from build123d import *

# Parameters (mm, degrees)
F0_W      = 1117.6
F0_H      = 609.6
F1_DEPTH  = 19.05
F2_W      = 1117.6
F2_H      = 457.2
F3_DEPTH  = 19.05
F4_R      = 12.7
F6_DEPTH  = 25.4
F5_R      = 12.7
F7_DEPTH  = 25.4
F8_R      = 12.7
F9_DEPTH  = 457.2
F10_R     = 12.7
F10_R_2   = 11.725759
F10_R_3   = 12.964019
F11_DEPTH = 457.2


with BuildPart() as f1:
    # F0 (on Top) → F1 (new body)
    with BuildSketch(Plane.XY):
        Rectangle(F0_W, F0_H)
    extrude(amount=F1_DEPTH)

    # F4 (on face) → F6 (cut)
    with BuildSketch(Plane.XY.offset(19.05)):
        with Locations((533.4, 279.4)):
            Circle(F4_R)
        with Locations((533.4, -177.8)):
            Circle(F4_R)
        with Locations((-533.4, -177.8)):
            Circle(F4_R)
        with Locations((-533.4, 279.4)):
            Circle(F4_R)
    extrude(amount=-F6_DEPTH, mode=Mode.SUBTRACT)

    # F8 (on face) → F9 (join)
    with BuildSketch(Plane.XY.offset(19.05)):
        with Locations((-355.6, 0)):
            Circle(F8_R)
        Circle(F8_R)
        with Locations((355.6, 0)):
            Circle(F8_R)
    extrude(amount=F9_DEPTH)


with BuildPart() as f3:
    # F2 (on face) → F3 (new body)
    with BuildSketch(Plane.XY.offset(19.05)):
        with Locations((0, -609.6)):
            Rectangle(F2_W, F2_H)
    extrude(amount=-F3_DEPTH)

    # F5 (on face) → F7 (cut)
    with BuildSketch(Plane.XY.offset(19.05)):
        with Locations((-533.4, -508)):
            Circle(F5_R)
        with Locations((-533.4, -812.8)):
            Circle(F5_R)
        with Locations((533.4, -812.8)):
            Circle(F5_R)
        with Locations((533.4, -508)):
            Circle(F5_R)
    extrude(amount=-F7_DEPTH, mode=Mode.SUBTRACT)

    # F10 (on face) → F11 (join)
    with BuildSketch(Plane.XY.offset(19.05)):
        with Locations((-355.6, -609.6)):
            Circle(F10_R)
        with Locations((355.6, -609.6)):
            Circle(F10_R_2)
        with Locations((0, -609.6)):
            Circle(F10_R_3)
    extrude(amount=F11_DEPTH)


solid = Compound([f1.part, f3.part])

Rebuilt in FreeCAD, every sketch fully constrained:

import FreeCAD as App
import Part
import Sketcher
Q = App.Units.Quantity


def add_polygon(sketch, points):
    """Adds a closed chain of lines whose ends are joined by coincident constraints."""
    first, n = sketch.GeometryCount, len(points)
    for a, b in zip(points, points[1:] + points[:1]):
        sketch.addGeometry(Part.LineSegment(App.Vector(*a, 0), App.Vector(*b, 0)), False)
    for i in range(n):
        sketch.addConstraint(Sketcher.Constraint("Coincident", first + i, 2, first + (i + 1) % n, 1))

doc = App.newDocument("Part")
body = doc.addObject("PartDesign::Body", "Body")

sketch1 = doc.addObject("Sketcher::SketchObject", "Sketch")
body.addObject(sketch1)
sketch1.AttachmentSupport = (doc.XY_Plane, [""])
sketch1.MapMode = "FlatFace"
add_polygon(sketch1, [(-558.8, 304.8), (-558.8, -304.8), (558.8, -304.8), (558.8, 304.8)])
sketch1.addConstraint([
    Sketcher.Constraint("Vertical", 0),
    Sketcher.Constraint("Horizontal", 1),
    Sketcher.Constraint("Vertical", 2),
    Sketcher.Constraint("Horizontal", 3),
    Sketcher.Constraint("Symmetric", 0, 2, 2, 2, -1, 1),
    Sketcher.Constraint("DistanceX", 1, 1, 1, 2, Q("44 in")),
    Sketcher.Constraint("DistanceY", 0, 2, 0, 1, Q("24 in")),
])
pad1 = doc.addObject("PartDesign::Pad", "Pad")
body.addObject(pad1)
pad1.Profile = sketch1
pad1.Length = Q("0.75 in")

sketch2 = doc.addObject("Sketcher::SketchObject", "Sketch001")
body.addObject(sketch2)
sketch2.AttachmentSupport = (doc.XY_Plane, [""])
sketch2.MapMode = "FlatFace"
sketch2.AttachmentOffset = App.Placement(App.Vector(0, 0, 0.75 * 25.4), App.Rotation())
sketch2.addGeometry([
    Part.Circle(App.Vector(533.4, 279.4, 0), App.Vector(0, 0, 1), 12.7),
    Part.Circle(App.Vector(533.4, -177.8, 0), App.Vector(0, 0, 1), 12.7),
    Part.Circle(App.Vector(-533.4, -177.8, 0), App.Vector(0, 0, 1), 12.7),
    Part.Circle(App.Vector(-533.4, 279.4, 0), App.Vector(0, 0, 1), 12.7),
], False)
sketch2.addConstraint([
    Sketcher.Constraint("Equal", 0, 1),
    Sketcher.Constraint("Equal", 1, 2),
    Sketcher.Constraint("Equal", 2, 3),
    Sketcher.Constraint("Symmetric", 1, 3, 2, 3, -2),
    Sketcher.Constraint("Symmetric", 0, 3, 3, 3, -2),
    Sketcher.Constraint("Vertical", 0, 3, 1, 3),
    Sketcher.Constraint("Diameter", 0, Q("1 in")),
    Sketcher.Constraint("DistanceX", -1, 1, 0, 3, Q("21 in")),
    Sketcher.Constraint("DistanceY", -1, 1, 0, 3, Q("11 in")),
    Sketcher.Constraint("DistanceY", 1, 3, -1, 1, Q("7 in")),
])
pocket1 = doc.addObject("PartDesign::Pocket", "Pocket")
body.addObject(pocket1)
pocket1.Profile = sketch2
pocket1.Length = Q("1 in")

sketch3 = doc.addObject("Sketcher::SketchObject", "Sketch002")
body.addObject(sketch3)
sketch3.AttachmentSupport = (doc.XY_Plane, [""])
sketch3.MapMode = "FlatFace"
sketch3.AttachmentOffset = App.Placement(App.Vector(0, 0, 0.75 * 25.4), App.Rotation())
sketch3.addGeometry([
    Part.Circle(App.Vector(-355.6, 0, 0), App.Vector(0, 0, 1), 12.7),
    Part.Circle(App.Vector(0, 0, 0), App.Vector(0, 0, 1), 12.7),
    Part.Circle(App.Vector(355.6, 0, 0), App.Vector(0, 0, 1), 12.7),
], False)
sketch3.addConstraint([
    Sketcher.Constraint("Coincident", 1, 3, -1, 1),
    Sketcher.Constraint("Equal", 0, 1),
    Sketcher.Constraint("Equal", 1, 2),
    Sketcher.Constraint("Symmetric", 0, 3, 2, 3, -1, 1),
    Sketcher.Constraint("PointOnObject", 0, 3, -1),
    Sketcher.Constraint("Diameter", 0, Q("1 in")),
    Sketcher.Constraint("DistanceX", 0, 3, -1, 1, Q("14 in")),
])
pad2 = doc.addObject("PartDesign::Pad", "Pad001")
body.addObject(pad2)
pad2.Profile = sketch3
pad2.Length = Q("18 in")
body2 = doc.addObject("PartDesign::Body", "Body001")

sketch4 = doc.addObject("Sketcher::SketchObject", "Sketch003")
body2.addObject(sketch4)
sketch4.AttachmentSupport = (doc.getObject("XY_Plane001"), [""])
sketch4.MapMode = "FlatFace"
sketch4.AttachmentOffset = App.Placement(App.Vector(0, 0, 0.75 * 25.4), App.Rotation())
add_polygon(sketch4, [(-558.8, -381), (-558.8, -838.2), (558.8, -838.2), (558.8, -381)])
sketch4.addConstraint([
    Sketcher.Constraint("Vertical", 0),
    Sketcher.Constraint("Horizontal", 1),
    Sketcher.Constraint("Vertical", 2),
    Sketcher.Constraint("Horizontal", 3),
    Sketcher.Constraint("DistanceX", 1, 1, 1, 2, Q("44 in")),
    Sketcher.Constraint("DistanceY", 0, 2, 0, 1, Q("18 in")),
    Sketcher.Constraint("DistanceX", 0, 2, -1, 1, Q("22 in")),
    Sketcher.Constraint("DistanceY", 0, 2, -1, 1, Q("33 in")),
])
pad3 = doc.addObject("PartDesign::Pad", "Pad002")
body2.addObject(pad3)
pad3.Profile = sketch4
pad3.Length = Q("0.75 in")
pad3.Reversed = True

sketch5 = doc.addObject("Sketcher::SketchObject", "Sketch004")
body2.addObject(sketch5)
sketch5.AttachmentSupport = (doc.getObject("XY_Plane001"), [""])
sketch5.MapMode = "FlatFace"
sketch5.AttachmentOffset = App.Placement(App.Vector(0, 0, 0.75 * 25.4), App.Rotation())
sketch5.addGeometry([
    Part.Circle(App.Vector(-533.4, -508, 0), App.Vector(0, 0, 1), 12.7),
    Part.Circle(App.Vector(-533.4, -812.8, 0), App.Vector(0, 0, 1), 12.7),
    Part.Circle(App.Vector(533.4, -812.8, 0), App.Vector(0, 0, 1), 12.7),
    Part.Circle(App.Vector(533.4, -508, 0), App.Vector(0, 0, 1), 12.7),
], False)
sketch5.addConstraint([
    Sketcher.Constraint("Equal", 0, 1),
    Sketcher.Constraint("Equal", 1, 2),
    Sketcher.Constraint("Equal", 2, 3),
    Sketcher.Constraint("Symmetric", 1, 3, 2, 3, -2),
    Sketcher.Constraint("Symmetric", 0, 3, 3, 3, -2),
    Sketcher.Constraint("Vertical", 0, 3, 1, 3),
    Sketcher.Constraint("Diameter", 0, Q("1 in")),
    Sketcher.Constraint("DistanceX", 0, 3, -1, 1, Q("21 in")),
    Sketcher.Constraint("DistanceY", 0, 3, -1, 1, Q("20 in")),
    Sketcher.Constraint("DistanceY", 1, 3, -1, 1, Q("32 in")),
])
pocket2 = doc.addObject("PartDesign::Pocket", "Pocket001")
body2.addObject(pocket2)
pocket2.Profile = sketch5
pocket2.Length = Q("1 in")

sketch6 = doc.addObject("Sketcher::SketchObject", "Sketch005")
body2.addObject(sketch6)
sketch6.AttachmentSupport = (doc.getObject("XY_Plane001"), [""])
sketch6.MapMode = "FlatFace"
sketch6.AttachmentOffset = App.Placement(App.Vector(0, 0, 0.75 * 25.4), App.Rotation())
sketch6.addGeometry([
    Part.Circle(App.Vector(-355.6, -609.6, 0), App.Vector(0, 0, 1), 12.7),
    Part.Circle(App.Vector(355.6, -609.6, 0), App.Vector(0, 0, 1), 11.725759),
    Part.Circle(App.Vector(0, -609.6, 0), App.Vector(0, 0, 1), 12.964019),
], False)
sketch6.addConstraint([
    Sketcher.Constraint("Symmetric", 0, 3, 1, 3, -2),
    Sketcher.Constraint("PointOnObject", 2, 3, -2),
    Sketcher.Constraint("Horizontal", 1, 3, 2, 3),
    Sketcher.Constraint("Diameter", 0, Q("1 in")),
    Sketcher.Constraint("DistanceX", 0, 3, -1, 1, Q("14 in")),
    Sketcher.Constraint("DistanceY", 0, 3, -1, 1, Q("24 in")),
    Sketcher.Constraint("Diameter", 1, Q("23.451518 mm")),
    Sketcher.Constraint("Diameter", 2, Q("25.928038 mm")),
])
pad4 = doc.addObject("PartDesign::Pad", "Pad003")
body2.addObject(pad4)
pad4.Profile = sketch6
pad4.Length = Q("18 in")

doc.recompute()
